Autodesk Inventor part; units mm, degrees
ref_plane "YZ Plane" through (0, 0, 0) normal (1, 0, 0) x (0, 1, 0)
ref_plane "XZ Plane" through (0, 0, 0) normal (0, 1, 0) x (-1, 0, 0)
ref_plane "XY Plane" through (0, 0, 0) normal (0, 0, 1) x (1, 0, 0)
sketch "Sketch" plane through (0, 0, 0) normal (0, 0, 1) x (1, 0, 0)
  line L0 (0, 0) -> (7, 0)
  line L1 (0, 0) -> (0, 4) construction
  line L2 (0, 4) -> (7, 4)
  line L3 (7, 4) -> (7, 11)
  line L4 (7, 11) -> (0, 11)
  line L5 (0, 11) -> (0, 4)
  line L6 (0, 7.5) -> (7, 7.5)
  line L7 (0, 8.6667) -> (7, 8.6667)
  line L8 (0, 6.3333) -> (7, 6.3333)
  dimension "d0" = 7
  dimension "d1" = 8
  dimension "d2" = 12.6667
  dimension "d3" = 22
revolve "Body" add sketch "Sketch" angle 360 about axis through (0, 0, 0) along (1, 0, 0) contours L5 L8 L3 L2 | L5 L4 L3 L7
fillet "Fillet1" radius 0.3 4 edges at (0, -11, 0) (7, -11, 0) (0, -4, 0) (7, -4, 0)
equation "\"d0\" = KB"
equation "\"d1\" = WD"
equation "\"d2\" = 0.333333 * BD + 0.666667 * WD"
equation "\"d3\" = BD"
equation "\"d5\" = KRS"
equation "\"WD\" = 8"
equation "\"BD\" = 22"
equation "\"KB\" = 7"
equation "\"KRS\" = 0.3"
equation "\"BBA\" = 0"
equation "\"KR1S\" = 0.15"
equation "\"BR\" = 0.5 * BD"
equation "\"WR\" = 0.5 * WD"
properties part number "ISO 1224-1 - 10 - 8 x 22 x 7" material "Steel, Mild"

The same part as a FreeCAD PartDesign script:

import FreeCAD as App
import Part
import Sketcher


def edges_at(feature, points):
    """Names of the edges that pass closest to the given points."""
    edges = feature.Shape.Edges
    near = lambda p: min(range(len(edges)), key=lambda i: edges[i].distToShape(Part.Vertex(*p))[0])
    return sorted({f"Edge{near(p) + 1}" for p in points})


def add_polygon(sketch, points):
    """Adds a closed chain of lines whose ends are joined by coincident constraints."""
    first, n = sketch.GeometryCount, len(points)
    for a, b in zip(points, points[1:] + points[:1]):
        sketch.addGeometry(Part.LineSegment(App.Vector(*a, 0), App.Vector(*b, 0)), False)
    for i in range(n):
        sketch.addConstraint(Sketcher.Constraint("Coincident", first + i, 2, first + (i + 1) % n, 1))

doc = App.newDocument("Part")
body = doc.addObject("PartDesign::Body", "Body")
body.AllowCompound = True

# Sketch on XY plane
sketch1 = body.newObject("Sketcher::SketchObject", "Sketch")
sketch1.AttachmentSupport = (doc.getObject("XY_Plane"), [""])
sketch1.MapMode = "FlatFace"
add_polygon(sketch1, [(0, 6.3), (0, 4), (7, 4), (7, 6.3)])  # lines 0-3
add_polygon(sketch1, [(0, 11), (0, 8.7), (7, 8.7), (7, 11)])  # lines 4-7
sketch1.addConstraint([
    Sketcher.Constraint("Vertical", 0),
    Sketcher.Constraint("Horizontal", 1),
    Sketcher.Constraint("Vertical", 2),
    Sketcher.Constraint("Horizontal", 3),
    Sketcher.Constraint("Vertical", 4),
    Sketcher.Constraint("Horizontal", 5),
    Sketcher.Constraint("Vertical", 6),
    Sketcher.Constraint("Horizontal", 7),
    Sketcher.Constraint("PointOnObject", 0, 2, -2),
    Sketcher.Constraint("PointOnObject", 4, 2, -2),
    Sketcher.Constraint("Vertical", 2, 2, 5, 2),
    Sketcher.Constraint("Equal", 2, 4),
    Sketcher.Constraint("DistanceX", 1, 1, 1, 2, 7.0),
    Sketcher.Constraint("DistanceY", 1, 2, 6, 2, 7.0),
    Sketcher.Constraint("DistanceY", -1, 1, 0, 2, 4.0),
    Sketcher.Constraint("DistanceY", 0, 2, 0, 1, 2.3333),
])
revolution = body.newObject("PartDesign::Revolution", "Revolution")
revolution.Profile = sketch1
revolution.ReferenceAxis = (sketch1, ["H_Axis"])
revolution.Angle = 360
doc.recompute()

fillet = body.newObject("PartDesign::Fillet", "Fillet")
fillet.Base = (revolution, edges_at(revolution, [
    (0, -11, 0),
    (7, -11, 0),
    (0, -4, 0),
    (7, -4, 0),
]))
fillet.Radius = 0.3

doc.recompute()
